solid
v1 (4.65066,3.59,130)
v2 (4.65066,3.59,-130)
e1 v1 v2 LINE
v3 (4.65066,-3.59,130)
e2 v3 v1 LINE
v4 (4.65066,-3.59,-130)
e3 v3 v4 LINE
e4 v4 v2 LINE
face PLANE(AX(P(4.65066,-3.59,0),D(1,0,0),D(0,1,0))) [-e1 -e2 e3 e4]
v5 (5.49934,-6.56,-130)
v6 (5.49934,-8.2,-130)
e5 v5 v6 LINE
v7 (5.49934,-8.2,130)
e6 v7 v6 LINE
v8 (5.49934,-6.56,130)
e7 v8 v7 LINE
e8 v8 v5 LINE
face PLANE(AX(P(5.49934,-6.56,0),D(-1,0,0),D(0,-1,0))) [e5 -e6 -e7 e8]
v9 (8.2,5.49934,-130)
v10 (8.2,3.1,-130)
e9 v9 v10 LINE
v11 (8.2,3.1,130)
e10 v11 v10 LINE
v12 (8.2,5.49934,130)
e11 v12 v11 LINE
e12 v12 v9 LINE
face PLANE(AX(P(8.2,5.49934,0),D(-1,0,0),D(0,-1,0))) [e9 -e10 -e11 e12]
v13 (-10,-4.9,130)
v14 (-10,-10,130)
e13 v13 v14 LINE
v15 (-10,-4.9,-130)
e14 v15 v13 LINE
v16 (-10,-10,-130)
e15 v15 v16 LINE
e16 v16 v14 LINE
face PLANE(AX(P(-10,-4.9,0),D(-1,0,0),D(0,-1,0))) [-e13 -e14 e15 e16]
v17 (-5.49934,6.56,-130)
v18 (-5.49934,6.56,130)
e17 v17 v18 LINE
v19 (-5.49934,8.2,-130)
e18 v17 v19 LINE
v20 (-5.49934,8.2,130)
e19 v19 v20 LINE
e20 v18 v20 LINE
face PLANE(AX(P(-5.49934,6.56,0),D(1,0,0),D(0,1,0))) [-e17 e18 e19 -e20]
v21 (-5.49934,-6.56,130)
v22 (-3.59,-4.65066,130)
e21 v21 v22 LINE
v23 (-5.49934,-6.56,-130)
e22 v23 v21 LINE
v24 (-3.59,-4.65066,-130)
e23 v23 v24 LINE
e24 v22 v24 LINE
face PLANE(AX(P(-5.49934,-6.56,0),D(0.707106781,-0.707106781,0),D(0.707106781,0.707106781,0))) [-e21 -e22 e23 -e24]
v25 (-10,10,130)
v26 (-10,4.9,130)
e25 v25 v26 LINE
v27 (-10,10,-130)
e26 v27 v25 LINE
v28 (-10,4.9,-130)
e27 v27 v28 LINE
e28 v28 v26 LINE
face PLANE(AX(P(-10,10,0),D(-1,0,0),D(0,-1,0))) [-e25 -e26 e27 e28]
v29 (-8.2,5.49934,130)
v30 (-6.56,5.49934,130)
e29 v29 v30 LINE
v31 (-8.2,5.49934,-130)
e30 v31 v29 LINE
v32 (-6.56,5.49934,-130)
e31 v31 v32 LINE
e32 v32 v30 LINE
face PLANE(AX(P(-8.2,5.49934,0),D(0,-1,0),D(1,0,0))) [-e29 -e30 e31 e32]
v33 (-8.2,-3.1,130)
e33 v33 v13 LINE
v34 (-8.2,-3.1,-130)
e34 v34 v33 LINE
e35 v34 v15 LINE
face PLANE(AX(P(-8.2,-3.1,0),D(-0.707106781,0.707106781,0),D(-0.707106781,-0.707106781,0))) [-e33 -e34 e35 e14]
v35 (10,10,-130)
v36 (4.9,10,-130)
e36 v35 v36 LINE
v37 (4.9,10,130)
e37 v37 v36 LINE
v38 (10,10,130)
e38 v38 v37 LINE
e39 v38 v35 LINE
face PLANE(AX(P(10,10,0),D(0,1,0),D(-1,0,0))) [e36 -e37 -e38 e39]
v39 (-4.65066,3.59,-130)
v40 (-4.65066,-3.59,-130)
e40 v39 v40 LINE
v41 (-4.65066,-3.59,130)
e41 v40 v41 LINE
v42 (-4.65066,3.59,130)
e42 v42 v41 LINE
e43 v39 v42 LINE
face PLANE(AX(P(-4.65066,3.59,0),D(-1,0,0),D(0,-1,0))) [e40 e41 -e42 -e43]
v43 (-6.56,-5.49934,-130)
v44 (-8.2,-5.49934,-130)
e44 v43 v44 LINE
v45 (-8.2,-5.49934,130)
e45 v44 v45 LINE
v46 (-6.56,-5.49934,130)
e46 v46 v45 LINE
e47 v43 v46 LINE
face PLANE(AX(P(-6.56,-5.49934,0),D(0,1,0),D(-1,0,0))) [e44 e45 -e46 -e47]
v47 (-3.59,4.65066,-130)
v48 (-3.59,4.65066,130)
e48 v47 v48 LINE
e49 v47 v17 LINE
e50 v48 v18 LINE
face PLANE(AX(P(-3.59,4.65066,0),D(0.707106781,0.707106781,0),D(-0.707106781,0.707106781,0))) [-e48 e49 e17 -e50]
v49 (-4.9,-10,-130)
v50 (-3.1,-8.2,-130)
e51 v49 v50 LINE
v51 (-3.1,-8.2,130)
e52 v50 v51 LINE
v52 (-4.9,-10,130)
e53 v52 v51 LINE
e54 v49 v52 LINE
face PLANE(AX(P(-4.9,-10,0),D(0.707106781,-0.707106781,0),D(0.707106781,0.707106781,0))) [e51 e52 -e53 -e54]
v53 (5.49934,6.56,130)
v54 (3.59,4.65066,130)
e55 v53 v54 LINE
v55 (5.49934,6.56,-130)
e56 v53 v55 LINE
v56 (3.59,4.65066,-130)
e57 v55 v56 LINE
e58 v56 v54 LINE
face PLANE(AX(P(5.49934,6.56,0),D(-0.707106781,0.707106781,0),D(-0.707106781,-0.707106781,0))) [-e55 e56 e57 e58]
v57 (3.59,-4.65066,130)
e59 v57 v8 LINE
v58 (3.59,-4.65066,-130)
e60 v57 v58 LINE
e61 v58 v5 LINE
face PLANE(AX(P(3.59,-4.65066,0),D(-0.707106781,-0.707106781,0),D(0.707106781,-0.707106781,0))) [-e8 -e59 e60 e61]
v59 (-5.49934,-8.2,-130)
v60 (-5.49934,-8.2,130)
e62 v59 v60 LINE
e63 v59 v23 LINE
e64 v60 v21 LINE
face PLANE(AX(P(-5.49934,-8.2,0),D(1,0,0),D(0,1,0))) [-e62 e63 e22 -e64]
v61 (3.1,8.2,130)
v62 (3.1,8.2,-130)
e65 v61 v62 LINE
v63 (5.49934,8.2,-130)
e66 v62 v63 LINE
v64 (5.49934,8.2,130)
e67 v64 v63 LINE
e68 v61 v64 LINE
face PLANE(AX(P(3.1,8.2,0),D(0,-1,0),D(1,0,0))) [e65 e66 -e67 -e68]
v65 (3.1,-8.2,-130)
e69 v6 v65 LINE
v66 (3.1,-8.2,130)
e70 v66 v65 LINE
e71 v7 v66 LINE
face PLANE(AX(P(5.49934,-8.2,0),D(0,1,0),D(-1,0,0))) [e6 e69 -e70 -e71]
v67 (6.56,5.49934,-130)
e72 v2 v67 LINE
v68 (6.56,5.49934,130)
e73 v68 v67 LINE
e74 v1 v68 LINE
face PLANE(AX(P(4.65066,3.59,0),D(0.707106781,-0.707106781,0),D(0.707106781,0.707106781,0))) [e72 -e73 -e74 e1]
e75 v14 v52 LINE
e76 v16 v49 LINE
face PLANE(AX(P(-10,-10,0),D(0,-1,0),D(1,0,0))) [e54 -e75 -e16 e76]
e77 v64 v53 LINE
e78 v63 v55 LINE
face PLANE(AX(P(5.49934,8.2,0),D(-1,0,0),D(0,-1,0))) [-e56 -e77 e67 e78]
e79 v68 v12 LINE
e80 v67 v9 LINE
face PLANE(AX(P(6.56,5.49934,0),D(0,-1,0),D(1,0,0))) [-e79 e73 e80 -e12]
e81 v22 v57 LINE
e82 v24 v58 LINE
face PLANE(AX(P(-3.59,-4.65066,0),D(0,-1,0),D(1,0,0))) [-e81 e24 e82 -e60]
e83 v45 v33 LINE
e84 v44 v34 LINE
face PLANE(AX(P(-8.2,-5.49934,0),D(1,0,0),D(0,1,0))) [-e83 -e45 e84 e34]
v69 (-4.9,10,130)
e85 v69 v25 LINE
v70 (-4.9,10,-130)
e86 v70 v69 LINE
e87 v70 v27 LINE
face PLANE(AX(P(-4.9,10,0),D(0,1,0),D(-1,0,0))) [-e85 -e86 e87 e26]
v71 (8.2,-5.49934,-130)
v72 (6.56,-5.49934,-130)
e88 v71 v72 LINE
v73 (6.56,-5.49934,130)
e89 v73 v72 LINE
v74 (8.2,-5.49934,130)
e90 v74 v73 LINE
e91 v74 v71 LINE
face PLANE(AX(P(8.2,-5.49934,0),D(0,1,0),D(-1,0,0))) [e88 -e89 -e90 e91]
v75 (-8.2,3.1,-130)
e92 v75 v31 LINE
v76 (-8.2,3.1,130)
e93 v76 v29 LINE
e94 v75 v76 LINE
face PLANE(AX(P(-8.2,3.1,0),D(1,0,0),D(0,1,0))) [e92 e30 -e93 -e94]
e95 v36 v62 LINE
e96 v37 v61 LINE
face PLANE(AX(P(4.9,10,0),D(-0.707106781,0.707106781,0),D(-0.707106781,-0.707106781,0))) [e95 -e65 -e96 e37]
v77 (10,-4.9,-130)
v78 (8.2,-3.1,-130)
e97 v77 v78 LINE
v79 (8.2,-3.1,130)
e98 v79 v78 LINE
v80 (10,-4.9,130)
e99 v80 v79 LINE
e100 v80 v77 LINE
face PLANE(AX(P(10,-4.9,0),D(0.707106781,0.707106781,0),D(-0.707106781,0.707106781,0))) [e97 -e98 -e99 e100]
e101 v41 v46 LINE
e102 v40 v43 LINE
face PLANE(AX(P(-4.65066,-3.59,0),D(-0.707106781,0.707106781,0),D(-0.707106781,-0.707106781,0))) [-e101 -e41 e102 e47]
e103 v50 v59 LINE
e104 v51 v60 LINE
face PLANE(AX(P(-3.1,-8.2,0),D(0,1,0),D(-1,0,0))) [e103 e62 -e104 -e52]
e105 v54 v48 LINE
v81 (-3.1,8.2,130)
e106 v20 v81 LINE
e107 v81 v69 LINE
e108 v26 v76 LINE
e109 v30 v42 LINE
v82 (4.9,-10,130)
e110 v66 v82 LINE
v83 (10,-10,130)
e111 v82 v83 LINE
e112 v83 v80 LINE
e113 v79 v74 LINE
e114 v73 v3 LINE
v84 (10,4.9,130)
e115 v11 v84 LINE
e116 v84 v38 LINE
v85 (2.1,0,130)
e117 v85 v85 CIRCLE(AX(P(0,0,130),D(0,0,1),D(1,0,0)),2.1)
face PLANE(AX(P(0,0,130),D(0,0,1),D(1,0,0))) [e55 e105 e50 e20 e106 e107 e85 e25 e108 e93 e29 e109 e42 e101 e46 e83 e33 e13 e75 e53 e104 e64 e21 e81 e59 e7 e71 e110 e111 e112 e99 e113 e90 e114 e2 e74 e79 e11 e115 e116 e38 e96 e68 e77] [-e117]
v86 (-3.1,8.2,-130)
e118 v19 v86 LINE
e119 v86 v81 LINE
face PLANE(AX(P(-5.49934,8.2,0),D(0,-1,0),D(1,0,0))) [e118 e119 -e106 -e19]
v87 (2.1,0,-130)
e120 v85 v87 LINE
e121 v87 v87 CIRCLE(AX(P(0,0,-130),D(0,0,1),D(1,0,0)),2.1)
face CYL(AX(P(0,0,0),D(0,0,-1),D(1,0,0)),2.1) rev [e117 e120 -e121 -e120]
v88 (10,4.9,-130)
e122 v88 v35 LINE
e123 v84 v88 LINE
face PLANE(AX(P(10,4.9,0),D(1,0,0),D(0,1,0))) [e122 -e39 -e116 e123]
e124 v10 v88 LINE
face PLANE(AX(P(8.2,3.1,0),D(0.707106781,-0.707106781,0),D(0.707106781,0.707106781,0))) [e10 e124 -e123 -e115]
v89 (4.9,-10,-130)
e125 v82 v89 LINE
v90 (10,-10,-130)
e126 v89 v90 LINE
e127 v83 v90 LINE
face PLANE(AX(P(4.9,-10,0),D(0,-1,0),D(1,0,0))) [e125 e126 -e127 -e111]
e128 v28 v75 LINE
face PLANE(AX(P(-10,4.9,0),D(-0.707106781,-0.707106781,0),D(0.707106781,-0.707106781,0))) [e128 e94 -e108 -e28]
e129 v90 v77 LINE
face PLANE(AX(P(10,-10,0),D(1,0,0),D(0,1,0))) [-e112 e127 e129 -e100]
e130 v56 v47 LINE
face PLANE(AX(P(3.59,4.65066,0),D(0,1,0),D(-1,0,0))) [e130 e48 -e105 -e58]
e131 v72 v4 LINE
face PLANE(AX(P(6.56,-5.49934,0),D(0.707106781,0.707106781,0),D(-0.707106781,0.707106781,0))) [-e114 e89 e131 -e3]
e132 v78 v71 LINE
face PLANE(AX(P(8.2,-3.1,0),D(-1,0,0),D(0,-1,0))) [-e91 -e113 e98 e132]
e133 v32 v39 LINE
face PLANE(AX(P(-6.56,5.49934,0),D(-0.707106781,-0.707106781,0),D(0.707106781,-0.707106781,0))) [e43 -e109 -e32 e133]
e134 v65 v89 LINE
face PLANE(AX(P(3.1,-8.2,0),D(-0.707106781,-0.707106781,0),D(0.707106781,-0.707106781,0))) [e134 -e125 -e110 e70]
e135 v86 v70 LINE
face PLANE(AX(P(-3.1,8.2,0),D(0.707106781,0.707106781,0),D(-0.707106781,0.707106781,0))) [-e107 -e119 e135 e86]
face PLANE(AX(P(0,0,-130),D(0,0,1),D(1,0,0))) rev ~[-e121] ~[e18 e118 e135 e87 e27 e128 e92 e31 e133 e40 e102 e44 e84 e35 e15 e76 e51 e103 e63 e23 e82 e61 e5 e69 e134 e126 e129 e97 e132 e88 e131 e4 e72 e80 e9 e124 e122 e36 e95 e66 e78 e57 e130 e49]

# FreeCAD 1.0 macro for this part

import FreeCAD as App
import Part
import Sketcher
from FreeCAD import Vector
Q = App.Units.Quantity

doc = App.newDocument("Part")
body = doc.addObject("PartDesign::Body", "Body")

sketch1 = body.newObject("Sketcher::SketchObject", "Sketch")
sketch1.AttachmentSupport = (doc.getObject("XY_Plane"), [""])
sketch1.MapMode = "FlatFace"
sketch1.addGeometry(Part.LineSegment(Vector(5.5, 6.6, 0), Vector(3.6, 4.7, 0)), False)
sketch1.addGeometry(Part.LineSegment(Vector(3.6, 4.7, 0), Vector(-3.6, 4.7, 0)), False)
sketch1.addGeometry(Part.LineSegment(Vector(-3.6, 4.7, 0), Vector(-5.5, 6.6, 0)), False)
sketch1.addGeometry(Part.LineSegment(Vector(-5.5, 6.6, 0), Vector(-5.5, 8.2, 0)), False)
sketch1.addGeometry(Part.LineSegment(Vector(-5.5, 8.2, 0), Vector(-3.1, 8.2, 0)), False)
sketch1.addGeometry(Part.LineSegment(Vector(-3.1, 8.2, 0), Vector(-4.9, 10, 0)), False)
sketch1.addGeometry(Part.LineSegment(Vector(-4.9, 10, 0), Vector(-10, 10, 0)), False)
sketch1.addGeometry(Part.LineSegment(Vector(-10, 10, 0), Vector(-10, 4.9, 0)), False)
sketch1.addGeometry(Part.LineSegment(Vector(-10, 4.9, 0), Vector(-8.2, 3.1, 0)), False)
sketch1.addGeometry(Part.LineSegment(Vector(-8.2, 3.1, 0), Vector(-8.2, 5.5, 0)), False)
sketch1.addGeometry(Part.LineSegment(Vector(-8.2, 5.5, 0), Vector(-6.6, 5.5, 0)), False)
sketch1.addGeometry(Part.LineSegment(Vector(-6.6, 5.5, 0), Vector(-4.7, 3.6, 0)), False)
sketch1.addGeometry(Part.LineSegment(Vector(-4.7, 3.6, 0), Vector(-4.7, -3.6, 0)), False)
sketch1.addGeometry(Part.LineSegment(Vector(-4.7, -3.6, 0), Vector(-6.6, -5.5, 0)), False)
sketch1.addGeometry(Part.LineSegment(Vector(-6.6, -5.5, 0), Vector(-8.2, -5.5, 0)), False)
sketch1.addGeometry(Part.LineSegment(Vector(-8.2, -5.5, 0), Vector(-8.2, -3.1, 0)), False)
sketch1.addGeometry(Part.LineSegment(Vector(-8.2, -3.1, 0), Vector(-10, -4.9, 0)), False)
sketch1.addGeometry(Part.LineSegment(Vector(-10, -4.9, 0), Vector(-10, -10, 0)), False)
sketch1.addGeometry(Part.LineSegment(Vector(-10, -10, 0), Vector(-4.9, -10, 0)), False)
sketch1.addGeometry(Part.LineSegment(Vector(-4.9, -10, 0), Vector(-3.1, -8.2, 0)), False)
sketch1.addGeometry(Part.LineSegment(Vector(-3.1, -8.2, 0), Vector(-5.5, -8.2, 0)), False)
sketch1.addGeometry(Part.LineSegment(Vector(-5.5, -8.2, 0), Vector(-5.5, -6.6, 0)), False)
sketch1.addGeometry(Part.LineSegment(Vector(-5.5, -6.6, 0), Vector(-3.6, -4.7, 0)), False)
sketch1.addGeometry(Part.LineSegment(Vector(-3.6, -4.7, 0), Vector(3.6, -4.7, 0)), False)
sketch1.addGeometry(Part.LineSegment(Vector(3.6, -4.7, 0), Vector(5.5, -6.6, 0)), False)
sketch1.addGeometry(Part.LineSegment(Vector(5.5, -6.6, 0), Vector(5.5, -8.2, 0)), False)
sketch1.addGeometry(Part.LineSegment(Vector(5.5, -8.2, 0), Vector(3.1, -8.2, 0)), False)
sketch1.addGeometry(Part.LineSegment(Vector(3.1, -8.2, 0), Vector(4.9, -10, 0)), False)
sketch1.addGeometry(Part.LineSegment(Vector(4.9, -10, 0), Vector(10, -10, 0)), False)
sketch1.addGeometry(Part.LineSegment(Vector(10, -10, 0), Vector(10, -4.9, 0)), False)
sketch1.addGeometry(Part.LineSegment(Vector(10, -4.9, 0), Vector(8.2, -3.1, 0)), False)
sketch1.addGeometry(Part.LineSegment(Vector(8.2, -3.1, 0), Vector(8.2, -5.5, 0)), False)
sketch1.addGeometry(Part.LineSegment(Vector(8.2, -5.5, 0), Vector(6.6, -5.5, 0)), False)
sketch1.addGeometry(Part.LineSegment(Vector(6.6, -5.5, 0), Vector(4.7, -3.6, 0)), False)
sketch1.addGeometry(Part.LineSegment(Vector(4.7, -3.6, 0), Vector(4.7, 3.6, 0)), False)
sketch1.addGeometry(Part.LineSegment(Vector(4.7, 3.6, 0), Vector(6.6, 5.5, 0)), False)
sketch1.addGeometry(Part.LineSegment(Vector(6.6, 5.5, 0), Vector(8.2, 5.5, 0)), False)
sketch1.addGeometry(Part.LineSegment(Vector(8.2, 5.5, 0), Vector(8.2, 3.1, 0)), False)
sketch1.addGeometry(Part.LineSegment(Vector(8.2, 3.1, 0), Vector(10, 4.9, 0)), False)
sketch1.addGeometry(Part.LineSegment(Vector(10, 4.9, 0), Vector(10, 10, 0)), False)
sketch1.addGeometry(Part.LineSegment(Vector(10, 10, 0), Vector(4.9, 10, 0)), False)
sketch1.addGeometry(Part.LineSegment(Vector(4.9, 10, 0), Vector(3.1, 8.2, 0)), False)
sketch1.addGeometry(Part.LineSegment(Vector(3.1, 8.2, 0), Vector(5.5, 8.2, 0)), False)
sketch1.addGeometry(Part.LineSegment(Vector(5.5, 8.2, 0), Vector(5.5, 6.6, 0)), False)
sketch1.addGeometry(Part.Circle(Vector(0, 0, 0), Vector(0, 0, 1), 2.1), False)
sketch1.addConstraint(Sketcher.Constraint("Coincident", 0, 2, 1, 1))
sketch1.addConstraint(Sketcher.Constraint("Coincident", 1, 2, 2, 1))
sketch1.addConstraint(Sketcher.Constraint("Coincident", 2, 2, 3, 1))
sketch1.addConstraint(Sketcher.Constraint("Coincident", 3, 2, 4, 1))
sketch1.addConstraint(Sketcher.Constraint("Coincident", 4, 2, 5, 1))
sketch1.addConstraint(Sketcher.Constraint("Coincident", 5, 2, 6, 1))
sketch1.addConstraint(Sketcher.Constraint("Coincident", 6, 2, 7, 1))
sketch1.addConstraint(Sketcher.Constraint("Coincident", 7, 2, 8, 1))
sketch1.addConstraint(Sketcher.Constraint("Coincident", 8, 2, 9, 1))
sketch1.addConstraint(Sketcher.Constraint("Coincident", 9, 2, 10, 1))
sketch1.addConstraint(Sketcher.Constraint("Coincident", 10, 2, 11, 1))
sketch1.addConstraint(Sketcher.Constraint("Coincident", 11, 2, 12, 1))
sketch1.addConstraint(Sketcher.Constraint("Coincident", 12, 2, 13, 1))
sketch1.addConstraint(Sketcher.Constraint("Coincident", 13, 2, 14, 1))
sketch1.addConstraint(Sketcher.Constraint("Coincident", 14, 2, 15, 1))
sketch1.addConstraint(Sketcher.Constraint("Coincident", 15, 2, 16, 1))
sketch1.addConstraint(Sketcher.Constraint("Coincident", 16, 2, 17, 1))
sketch1.addConstraint(Sketcher.Constraint("Coincident", 17, 2, 18, 1))
sketch1.addConstraint(Sketcher.Constraint("Coincident", 18, 2, 19, 1))
sketch1.addConstraint(Sketcher.Constraint("Coincident", 19, 2, 20, 1))
sketch1.addConstraint(Sketcher.Constraint("Coincident", 20, 2, 21, 1))
sketch1.addConstraint(Sketcher.Constraint("Coincident", 21, 2, 22, 1))
sketch1.addConstraint(Sketcher.Constraint("Coincident", 22, 2, 23, 1))
sketch1.addConstraint(Sketcher.Constraint("Coincident", 23, 2, 24, 1))
sketch1.addConstraint(Sketcher.Constraint("Coincident", 24, 2, 25, 1))
sketch1.addConstraint(Sketcher.Constraint("Coincident", 25, 2, 26, 1))
sketch1.addConstraint(Sketcher.Constraint("Coincident", 26, 2, 27, 1))
sketch1.addConstraint(Sketcher.Constraint("Coincident", 27, 2, 28, 1))
sketch1.addConstraint(Sketcher.Constraint("Coincident", 28, 2, 29, 1))
sketch1.addConstraint(Sketcher.Constraint("Coincident", 29, 2, 30, 1))
sketch1.addConstraint(Sketcher.Constraint("Coincident", 30, 2, 31, 1))
sketch1.addConstraint(Sketcher.Constraint("Coincident", 31, 2, 32, 1))
sketch1.addConstraint(Sketcher.Constraint("Coincident", 32, 2, 33, 1))
sketch1.addConstraint(Sketcher.Constraint("Coincident", 33, 2, 34, 1))
sketch1.addConstraint(Sketcher.Constraint("Coincident", 34, 2, 35, 1))
sketch1.addConstraint(Sketcher.Constraint("Coincident", 35, 2, 36, 1))
sketch1.addConstraint(Sketcher.Constraint("Coincident", 36, 2, 37, 1))
sketch1.addConstraint(Sketcher.Constraint("Coincident", 37, 2, 38, 1))
sketch1.addConstraint(Sketcher.Constraint("Coincident", 38, 2, 39, 1))
sketch1.addConstraint(Sketcher.Constraint("Coincident", 39, 2, 40, 1))
sketch1.addConstraint(Sketcher.Constraint("Coincident", 40, 2, 41, 1))
sketch1.addConstraint(Sketcher.Constraint("Coincident", 41, 2, 42, 1))
sketch1.addConstraint(Sketcher.Constraint("Coincident", 42, 2, 43, 1))
sketch1.addConstraint(Sketcher.Constraint("Coincident", 43, 2, 0, 1))
sketch1.addConstraint(Sketcher.Constraint("Horizontal", 1))
sketch1.addConstraint(Sketcher.Constraint("Vertical", 3))
sketch1.addConstraint(Sketcher.Constraint("Horizontal", 4))
sketch1.addConstraint(Sketcher.Constraint("Horizontal", 6))
sketch1.addConstraint(Sketcher.Constraint("Vertical", 7))
sketch1.addConstraint(Sketcher.Constraint("Vertical", 9))
sketch1.addConstraint(Sketcher.Constraint("Horizontal", 10))
sketch1.addConstraint(Sketcher.Constraint("Vertical", 12))
sketch1.addConstraint(Sketcher.Constraint("Horizontal", 14))
sketch1.addConstraint(Sketcher.Constraint("Vertical", 15))
sketch1.addConstraint(Sketcher.Constraint("Vertical", 17))
sketch1.addConstraint(Sketcher.Constraint("Horizontal", 18))
sketch1.addConstraint(Sketcher.Constraint("Horizontal", 20))
sketch1.addConstraint(Sketcher.Constraint("Vertical", 21))
sketch1.addConstraint(Sketcher.Constraint("Horizontal", 23))
sketch1.addConstraint(Sketcher.Constraint("Vertical", 25))
sketch1.addConstraint(Sketcher.Constraint("Horizontal", 26))
sketch1.addConstraint(Sketcher.Constraint("Horizontal", 28))
sketch1.addConstraint(Sketcher.Constraint("Vertical", 29))
sketch1.addConstraint(Sketcher.Constraint("Vertical", 31))
sketch1.addConstraint(Sketcher.Constraint("Horizontal", 32))
sketch1.addConstraint(Sketcher.Constraint("Vertical", 34))
sketch1.addConstraint(Sketcher.Constraint("Horizontal", 36))
sketch1.addConstraint(Sketcher.Constraint("Vertical", 37))
sketch1.addConstraint(Sketcher.Constraint("Vertical", 39))
sketch1.addConstraint(Sketcher.Constraint("Horizontal", 40))
sketch1.addConstraint(Sketcher.Constraint("Horizontal", 42))
sketch1.addConstraint(Sketcher.Constraint("Vertical", 43))
sketch1.addConstraint(Sketcher.Constraint("Coincident", 44, 3, -1, 1))
sketch1.addConstraint(Sketcher.Constraint("Symmetric", 0, 2, 22, 2, -1, 1))
sketch1.addConstraint(Sketcher.Constraint("Symmetric", 2, 2, 24, 2, -1, 1))
sketch1.addConstraint(Sketcher.Constraint("Symmetric", 4, 2, 26, 2, -1, 1))
sketch1.addConstraint(Sketcher.Constraint("Symmetric", 5, 2, 27, 2, -1, 1))
sketch1.addConstraint(Sketcher.Constraint("Symmetric", 7, 2, 29, 2, -1, 1))
sketch1.addConstraint(Sketcher.Constraint("Symmetric", 8, 2, 30, 2, -1, 1))
sketch1.addConstraint(Sketcher.Constraint("Symmetric", 10, 2, 32, 2, -1, 1))
sketch1.addConstraint(Sketcher.Constraint("Symmetric", 11, 2, 33, 2, -1, 1))
sketch1.addConstraint(Sketcher.Constraint("Symmetric", 13, 2, 35, 2, -1, 1))
sketch1.addConstraint(Sketcher.Constraint("Symmetric", 15, 2, 37, 2, -1, 1))
sketch1.addConstraint(Sketcher.Constraint("Symmetric", 16, 2, 38, 2, -1, 1))
sketch1.addConstraint(Sketcher.Constraint("Symmetric", 18, 2, 40, 2, -1, 1))
sketch1.addConstraint(Sketcher.Constraint("Symmetric", 19, 2, 41, 2, -1, 1))
sketch1.addConstraint(Sketcher.Constraint("Symmetric", 21, 2, 43, 2, -1, 1))
sketch1.addConstraint(Sketcher.Constraint("Symmetric", 21, 2, 24, 2, -2))
sketch1.addConstraint(Sketcher.Constraint("Symmetric", 19, 2, 26, 2, -2))
sketch1.addConstraint(Sketcher.Constraint("Symmetric", 18, 2, 27, 2, -2))
sketch1.addConstraint(Sketcher.Constraint("Symmetric", 16, 2, 29, 2, -2))
sketch1.addConstraint(Sketcher.Constraint("Symmetric", 15, 2, 30, 2, -2))
sketch1.addConstraint(Sketcher.Constraint("Symmetric", 13, 2, 32, 2, -2))
sketch1.addConstraint(Sketcher.Constraint("Perpendicular", 0, 2))
sketch1.addConstraint(Sketcher.Constraint("Parallel", 2, 5))
sketch1.addConstraint(Sketcher.Constraint("Parallel", 5, 8))
sketch1.addConstraint(Sketcher.Constraint("Parallel", 8, 11))
sketch1.addConstraint(Sketcher.Constraint("Perpendicular", 11, 13))
sketch1.addConstraint(Sketcher.Constraint("Parallel", 13, 16))
sketch1.addConstraint(Sketcher.Constraint("Perpendicular", 22, 24))
sketch1.addConstraint(Sketcher.Constraint("Perpendicular", 33, 35))
sketch1.addConstraint(Sketcher.Constraint("Equal", 36, 3))
sketch1.addConstraint(Sketcher.Constraint("Equal", 40, 7))
sketch1.addConstraint(Sketcher.Constraint("Equal", 42, 9))
sketch1.addConstraint(Sketcher.Constraint("Equal", 23, 12))
sketch1.addConstraint(Sketcher.Constraint("Equal", 5, 8))
sketch1.addConstraint(Sketcher.Constraint("Equal", 2, 11))
sketch1.addConstraint(Sketcher.Constraint("Diameter", 44, Q("4.2 mm")))
sketch1.addConstraint(Sketcher.Constraint("DistanceX", 6, 2, 6, 1, Q("5.1 mm")))
sketch1.addConstraint(Sketcher.Constraint("DistanceY", -1, 1, 5, 2, Q("10 mm")))
sketch1.addConstraint(Sketcher.Constraint("DistanceY", 16, 2, 8, 2, Q("8 mm")))
sketch1.addConstraint(Sketcher.Constraint("DistanceX", 1, 2, 1, 1, Q("7.18 mm")))
sketch1.addConstraint(Sketcher.Constraint("DistanceX", 10, 1, 10, 2, Q("1.64 mm")))
sketch1.addConstraint(Sketcher.Constraint("DistanceX", 4, 1, 4, 2, Q("2.39934 mm")))
pad1 = body.newObject("PartDesign::Pad", "Pad")
pad1.Profile = sketch1
pad1.Length = 260
pad1.Midplane = True

doc.recompute()
